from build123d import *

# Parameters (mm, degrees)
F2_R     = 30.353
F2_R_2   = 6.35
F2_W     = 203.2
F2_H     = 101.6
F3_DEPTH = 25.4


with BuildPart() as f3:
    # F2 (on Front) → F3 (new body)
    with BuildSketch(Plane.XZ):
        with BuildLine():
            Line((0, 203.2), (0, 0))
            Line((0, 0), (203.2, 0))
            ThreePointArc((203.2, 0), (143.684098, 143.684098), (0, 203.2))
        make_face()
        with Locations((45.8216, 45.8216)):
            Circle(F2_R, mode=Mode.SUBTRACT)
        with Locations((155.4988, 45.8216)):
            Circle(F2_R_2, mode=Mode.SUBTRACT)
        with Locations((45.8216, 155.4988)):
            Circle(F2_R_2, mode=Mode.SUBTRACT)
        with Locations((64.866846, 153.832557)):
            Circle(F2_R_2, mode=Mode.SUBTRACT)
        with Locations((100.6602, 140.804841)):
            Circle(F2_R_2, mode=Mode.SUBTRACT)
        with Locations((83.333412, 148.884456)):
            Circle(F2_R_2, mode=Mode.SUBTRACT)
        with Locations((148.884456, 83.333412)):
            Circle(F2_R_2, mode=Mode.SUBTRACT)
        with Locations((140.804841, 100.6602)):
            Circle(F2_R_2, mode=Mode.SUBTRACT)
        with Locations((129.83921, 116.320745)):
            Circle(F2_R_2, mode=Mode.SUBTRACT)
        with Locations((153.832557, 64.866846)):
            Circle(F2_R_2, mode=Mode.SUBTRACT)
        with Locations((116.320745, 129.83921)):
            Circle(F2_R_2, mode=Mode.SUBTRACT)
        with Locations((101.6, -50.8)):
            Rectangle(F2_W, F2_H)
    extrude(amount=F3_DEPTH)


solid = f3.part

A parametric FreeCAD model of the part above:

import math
import FreeCAD as App
import Part
import Sketcher
from FreeCAD import Vector
Q = App.Units.Quantity

doc = App.newDocument("Part")
body = doc.addObject("PartDesign::Body", "Body")

# Sketch on XZ plane
sketch1 = body.newObject("Sketcher::SketchObject", "Sketch")
sketch1.AttachmentSupport = (doc.getObject("XZ_Plane"), [""])
sketch1.MapMode = "FlatFace"
sketch1.addGeometry(Part.LineSegment(Vector(0, 203.2, 0), Vector(0, -101.6, 0)), False)
sketch1.addGeometry(Part.LineSegment(Vector(0, -101.6, 0), Vector(203.2, -101.6, 0)), False)
sketch1.addGeometry(Part.LineSegment(Vector(203.2, -101.6, 0), Vector(203.2, 0, 0)), False)
sketch1.addGeometry(Part.ArcOfCircle(Part.Circle(Vector(0, 0, 0), Vector(0, 0, 1), 203.2), math.radians(0), math.radians(90)), False)
sketch1.addGeometry(Part.Circle(Vector(45.8216, 45.8216, 0), Vector(0, 0, 1), 30.353), False)
sketch1.addGeometry(Part.Circle(Vector(155.4988, 45.8216, 0), Vector(0, 0, 1), 6.35), False)
sketch1.addGeometry(Part.Circle(Vector(153.832557, 64.866846, 0), Vector(0, 0, 1), 6.35), False)
sketch1.addGeometry(Part.Circle(Vector(148.884456, 83.333412, 0), Vector(0, 0, 1), 6.35), False)
sketch1.addGeometry(Part.Circle(Vector(45.8216, 155.4988, 0), Vector(0, 0, 1), 6.35), False)
sketch1.addGeometry(Part.Circle(Vector(64.866846, 153.832557, 0), Vector(0, 0, 1), 6.35), False)
sketch1.addGeometry(Part.Circle(Vector(83.333412, 148.884456, 0), Vector(0, 0, 1), 6.35), False)
sketch1.addGeometry(Part.Circle(Vector(140.804841, 100.6602, 0), Vector(0, 0, 1), 6.35), False)
sketch1.addGeometry(Part.Circle(Vector(129.83921, 116.320745, 0), Vector(0, 0, 1), 6.35), False)
sketch1.addGeometry(Part.Circle(Vector(100.6602, 140.804841, 0), Vector(0, 0, 1), 6.35), False)
sketch1.addGeometry(Part.Circle(Vector(116.320745, 129.83921, 0), Vector(0, 0, 1), 6.35), False)
sketch1.addConstraint(Sketcher.Constraint("Coincident", 0, 2, 1, 1))
sketch1.addConstraint(Sketcher.Constraint("Coincident", 1, 2, 2, 1))
sketch1.addConstraint(Sketcher.Constraint("Tangent", 2, 2, 3, 1))
sketch1.addConstraint(Sketcher.Constraint("Coincident", 3, 2, 0, 1))
sketch1.addConstraint(Sketcher.Constraint("Vertical", 0))
sketch1.addConstraint(Sketcher.Constraint("Horizontal", 1))
sketch1.addConstraint(Sketcher.Constraint("Vertical", 2))
sketch1.addConstraint(Sketcher.Constraint("Coincident", 3, 3, -1, 1))
sketch1.addConstraint(Sketcher.Constraint("Equal", 5, 6))
sketch1.addConstraint(Sketcher.Constraint("Equal", 6, 7))
sketch1.addConstraint(Sketcher.Constraint("Equal", 7, 8))
sketch1.addConstraint(Sketcher.Constraint("Equal", 8, 9))
sketch1.addConstraint(Sketcher.Constraint("Equal", 9, 10))
sketch1.addConstraint(Sketcher.Constraint("Equal", 10, 11))
sketch1.addConstraint(Sketcher.Constraint("Equal", 11, 12))
sketch1.addConstraint(Sketcher.Constraint("Equal", 12, 13))
sketch1.addConstraint(Sketcher.Constraint("Equal", 13, 14))
sketch1.addConstraint(Sketcher.Constraint("PointOnObject", 0, 2, -2))
sketch1.addConstraint(Sketcher.Constraint("Horizontal", 4, 3, 5, 3))
sketch1.addConstraint(Sketcher.Constraint("Vertical", 4, 3, 8, 3))
sketch1.addConstraint(Sketcher.Constraint("Radius", 3, Q("8 in")))
sketch1.addConstraint(Sketcher.Constraint("Diameter", 5, Q("0.5 in")))
sketch1.addConstraint(Sketcher.Constraint("Diameter", 4, Q("2.39 in")))
sketch1.addConstraint(Sketcher.Constraint("DistanceY", 0, 2, 0, 1, Q("12 in")))
sketch1.addConstraint(Sketcher.Constraint("DistanceX", -1, 1, 4, 3, Q("1.804 in")))
sketch1.addConstraint(Sketcher.Constraint("DistanceY", -1, 1, 4, 3, Q("1.804 in")))
sketch1.addConstraint(Sketcher.Constraint("DistanceX", -1, 1, 5, 3, Q("6.122 in")))
sketch1.addConstraint(Sketcher.Constraint("DistanceY", -1, 1, 8, 3, Q("6.122 in")))
sketch1.addConstraint(Sketcher.Constraint("DistanceY", -1, 1, 11, 3, Q("3.963 in")))
sketch1.addConstraint(Sketcher.Constraint("DistanceX", -1, 1, 13, 3, Q("3.963 in")))
sketch1.addConstraint(Sketcher.Constraint("DistanceX", -1, 1, 6, 3, Q("6.0563999 in")))
sketch1.addConstraint(Sketcher.Constraint("DistanceY", -1, 1, 9, 3, Q("6.0563999 in")))
sketch1.addConstraint(Sketcher.Constraint("DistanceX", 7, 3, 6, 3, 4.948101))
sketch1.addConstraint(Sketcher.Constraint("DistanceY", 10, 3, 9, 3, 4.948101))
sketch1.addConstraint(Sketcher.Constraint("DistanceY", 6, 3, 12, 3, 51.453899))
sketch1.addConstraint(Sketcher.Constraint("DistanceX", 10, 3, 12, 3, 46.505798))
sketch1.addConstraint(Sketcher.Constraint("DistanceX", 9, 3, 14, 3, 51.453899))
sketch1.addConstraint(Sketcher.Constraint("DistanceY", -1, 1, 7, 3, 83.333412))
sketch1.addConstraint(Sketcher.Constraint("DistanceX", -1, 1, 10, 3, 83.333412))
sketch1.addConstraint(Sketcher.Constraint("DistanceX", -1, 1, 11, 3, 140.804841))
sketch1.addConstraint(Sketcher.Constraint("DistanceY", -1, 1, 13, 3, 140.804841))
sketch1.addConstraint(Sketcher.Constraint("DistanceY", -1, 1, 14, 3, 129.83921))
sketch1.addConstraint(Sketcher.Constraint("DistanceX", 9, 3, 7, 3, 84.01761))
sketch1.addConstraint(Sketcher.Constraint("DistanceY", 6, 3, 9, 3, 88.965711))
pad1 = body.newObject("PartDesign::Pad", "Pad")
pad1.Profile = sketch1
pad1.Length = Q("1 in")

doc.recompute()
